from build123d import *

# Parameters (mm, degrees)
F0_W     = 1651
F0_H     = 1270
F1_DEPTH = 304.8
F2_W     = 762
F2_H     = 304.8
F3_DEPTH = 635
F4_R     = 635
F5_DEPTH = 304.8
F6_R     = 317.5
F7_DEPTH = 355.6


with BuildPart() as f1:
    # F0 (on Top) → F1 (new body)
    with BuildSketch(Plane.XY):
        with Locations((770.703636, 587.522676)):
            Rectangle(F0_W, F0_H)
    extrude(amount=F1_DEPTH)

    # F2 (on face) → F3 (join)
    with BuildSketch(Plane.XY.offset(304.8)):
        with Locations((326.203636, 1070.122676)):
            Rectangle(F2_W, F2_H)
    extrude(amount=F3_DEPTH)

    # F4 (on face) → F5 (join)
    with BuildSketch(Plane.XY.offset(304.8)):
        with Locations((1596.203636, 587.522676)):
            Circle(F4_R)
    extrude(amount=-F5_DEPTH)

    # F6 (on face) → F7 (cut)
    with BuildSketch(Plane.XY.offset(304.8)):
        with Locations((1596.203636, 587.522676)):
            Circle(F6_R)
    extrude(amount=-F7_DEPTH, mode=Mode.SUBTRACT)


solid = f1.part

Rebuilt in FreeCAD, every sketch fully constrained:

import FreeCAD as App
import Part
import Sketcher

V = App.Vector
Q = App.Units.Quantity

doc = App.newDocument("Part")
body = doc.addObject("PartDesign::Body", "Body")

sketch1 = doc.addObject("Sketcher::SketchObject", "Sketch")
body.addObject(sketch1)
sketch1.AttachmentSupport = (doc.XY_Plane, [""])
sketch1.MapMode = "FlatFace"
sketch1.addGeometry(Part.LineSegment(V(-55, 1223, 0), V(-55, -47, 0)), False)
sketch1.addGeometry(Part.LineSegment(V(-55, -47, 0), V(1596, -47, 0)), False)
sketch1.addGeometry(Part.LineSegment(V(1596, -47, 0), V(1596, 1223, 0)), False)
sketch1.addGeometry(Part.LineSegment(V(1596, 1223, 0), V(-55, 1223, 0)), False)
sketch1.addConstraint(Sketcher.Constraint("Coincident", 0, 2, 1, 1))
sketch1.addConstraint(Sketcher.Constraint("Coincident", 1, 2, 2, 1))
sketch1.addConstraint(Sketcher.Constraint("Coincident", 2, 2, 3, 1))
sketch1.addConstraint(Sketcher.Constraint("Coincident", 3, 2, 0, 1))
sketch1.addConstraint(Sketcher.Constraint("Vertical", 0))
sketch1.addConstraint(Sketcher.Constraint("Horizontal", 1))
sketch1.addConstraint(Sketcher.Constraint("Vertical", 2))
sketch1.addConstraint(Sketcher.Constraint("Horizontal", 3))
sketch1.addConstraint(Sketcher.Constraint("DistanceX", 1, 1, 1, 2, Q("65 in")))
sketch1.addConstraint(Sketcher.Constraint("DistanceY", 0, 2, 0, 1, Q("50 in")))
sketch1.addConstraint(Sketcher.Constraint("DistanceX", 0, 2, -1, 1, Q("54.796364 mm")))
sketch1.addConstraint(Sketcher.Constraint("DistanceY", 0, 2, -1, 1, Q("47.477324 mm")))
pad1 = doc.addObject("PartDesign::Pad", "Pad")
body.addObject(pad1)
pad1.Profile = sketch1
pad1.Length = Q("12 in")

sketch2 = doc.addObject("Sketcher::SketchObject", "Sketch001")
body.addObject(sketch2)
sketch2.AttachmentSupport = (doc.XY_Plane, [""])
sketch2.MapMode = "FlatFace"
sketch2.AttachmentOffset = App.Placement(V(0, 0, 12 * 25.4), App.Rotation())
sketch2.addGeometry(Part.LineSegment(V(-55, 1223, 0), V(-55, 918, 0)), False)
sketch2.addGeometry(Part.LineSegment(V(-55, 918, 0), V(707, 918, 0)), False)
sketch2.addGeometry(Part.LineSegment(V(707, 918, 0), V(707, 1223, 0)), False)
sketch2.addGeometry(Part.LineSegment(V(707, 1223, 0), V(-55, 1223, 0)), False)
sketch2.addConstraint(Sketcher.Constraint("Coincident", 0, 2, 1, 1))
sketch2.addConstraint(Sketcher.Constraint("Coincident", 1, 2, 2, 1))
sketch2.addConstraint(Sketcher.Constraint("Coincident", 2, 2, 3, 1))
sketch2.addConstraint(Sketcher.Constraint("Coincident", 3, 2, 0, 1))
sketch2.addConstraint(Sketcher.Constraint("Vertical", 0))
sketch2.addConstraint(Sketcher.Constraint("Horizontal", 1))
sketch2.addConstraint(Sketcher.Constraint("Vertical", 2))
sketch2.addConstraint(Sketcher.Constraint("Horizontal", 3))
sketch2.addConstraint(Sketcher.Constraint("DistanceX", 1, 1, 1, 2, Q("30 in")))
sketch2.addConstraint(Sketcher.Constraint("DistanceY", 0, 2, 0, 1, Q("12 in")))
sketch2.addConstraint(Sketcher.Constraint("DistanceX", 0, 2, -1, 1, Q("54.796364 mm")))
sketch2.addConstraint(Sketcher.Constraint("DistanceY", -1, 1, 0, 2, Q("917.722676 mm")))
pad2 = doc.addObject("PartDesign::Pad", "Pad001")
body.addObject(pad2)
pad2.Profile = sketch2
pad2.Length = Q("25 in")

sketch3 = doc.addObject("Sketcher::SketchObject", "Sketch002")
body.addObject(sketch3)
sketch3.AttachmentSupport = (doc.XY_Plane, [""])
sketch3.MapMode = "FlatFace"
sketch3.AttachmentOffset = App.Placement(V(0, 0, 12 * 25.4), App.Rotation())
sketch3.addGeometry(Part.Circle(V(1596, 588, 0), V(0, 0, 1), 635), False)
sketch3.addConstraint(Sketcher.Constraint("Diameter", 0, Q("50 in")))
sketch3.addConstraint(Sketcher.Constraint("DistanceX", -1, 1, 0, 3, Q("1596.203636 mm")))
sketch3.addConstraint(Sketcher.Constraint("DistanceY", -1, 1, 0, 3, Q("587.522676 mm")))
pad3 = doc.addObject("PartDesign::Pad", "Pad002")
body.addObject(pad3)
pad3.Profile = sketch3
pad3.Length = Q("12 in")
pad3.Reversed = True

sketch4 = doc.addObject("Sketcher::SketchObject", "Sketch003")
body.addObject(sketch4)
sketch4.AttachmentSupport = (doc.XY_Plane, [""])
sketch4.MapMode = "FlatFace"
sketch4.AttachmentOffset = App.Placement(V(0, 0, 12 * 25.4), App.Rotation())
sketch4.addGeometry(Part.Circle(V(1596, 588, 0), V(0, 0, 1), 318), False)
sketch4.addConstraint(Sketcher.Constraint("Diameter", 0, Q("25 in")))
sketch4.addConstraint(Sketcher.Constraint("DistanceX", -1, 1, 0, 3, Q("1596.203636 mm")))
sketch4.addConstraint(Sketcher.Constraint("DistanceY", -1, 1, 0, 3, Q("587.522676 mm")))
pocket1 = doc.addObject("PartDesign::Pocket", "Pocket")
body.addObject(pocket1)
pocket1.Profile = sketch4
pocket1.Length = Q("14 in")

doc.recompute()
